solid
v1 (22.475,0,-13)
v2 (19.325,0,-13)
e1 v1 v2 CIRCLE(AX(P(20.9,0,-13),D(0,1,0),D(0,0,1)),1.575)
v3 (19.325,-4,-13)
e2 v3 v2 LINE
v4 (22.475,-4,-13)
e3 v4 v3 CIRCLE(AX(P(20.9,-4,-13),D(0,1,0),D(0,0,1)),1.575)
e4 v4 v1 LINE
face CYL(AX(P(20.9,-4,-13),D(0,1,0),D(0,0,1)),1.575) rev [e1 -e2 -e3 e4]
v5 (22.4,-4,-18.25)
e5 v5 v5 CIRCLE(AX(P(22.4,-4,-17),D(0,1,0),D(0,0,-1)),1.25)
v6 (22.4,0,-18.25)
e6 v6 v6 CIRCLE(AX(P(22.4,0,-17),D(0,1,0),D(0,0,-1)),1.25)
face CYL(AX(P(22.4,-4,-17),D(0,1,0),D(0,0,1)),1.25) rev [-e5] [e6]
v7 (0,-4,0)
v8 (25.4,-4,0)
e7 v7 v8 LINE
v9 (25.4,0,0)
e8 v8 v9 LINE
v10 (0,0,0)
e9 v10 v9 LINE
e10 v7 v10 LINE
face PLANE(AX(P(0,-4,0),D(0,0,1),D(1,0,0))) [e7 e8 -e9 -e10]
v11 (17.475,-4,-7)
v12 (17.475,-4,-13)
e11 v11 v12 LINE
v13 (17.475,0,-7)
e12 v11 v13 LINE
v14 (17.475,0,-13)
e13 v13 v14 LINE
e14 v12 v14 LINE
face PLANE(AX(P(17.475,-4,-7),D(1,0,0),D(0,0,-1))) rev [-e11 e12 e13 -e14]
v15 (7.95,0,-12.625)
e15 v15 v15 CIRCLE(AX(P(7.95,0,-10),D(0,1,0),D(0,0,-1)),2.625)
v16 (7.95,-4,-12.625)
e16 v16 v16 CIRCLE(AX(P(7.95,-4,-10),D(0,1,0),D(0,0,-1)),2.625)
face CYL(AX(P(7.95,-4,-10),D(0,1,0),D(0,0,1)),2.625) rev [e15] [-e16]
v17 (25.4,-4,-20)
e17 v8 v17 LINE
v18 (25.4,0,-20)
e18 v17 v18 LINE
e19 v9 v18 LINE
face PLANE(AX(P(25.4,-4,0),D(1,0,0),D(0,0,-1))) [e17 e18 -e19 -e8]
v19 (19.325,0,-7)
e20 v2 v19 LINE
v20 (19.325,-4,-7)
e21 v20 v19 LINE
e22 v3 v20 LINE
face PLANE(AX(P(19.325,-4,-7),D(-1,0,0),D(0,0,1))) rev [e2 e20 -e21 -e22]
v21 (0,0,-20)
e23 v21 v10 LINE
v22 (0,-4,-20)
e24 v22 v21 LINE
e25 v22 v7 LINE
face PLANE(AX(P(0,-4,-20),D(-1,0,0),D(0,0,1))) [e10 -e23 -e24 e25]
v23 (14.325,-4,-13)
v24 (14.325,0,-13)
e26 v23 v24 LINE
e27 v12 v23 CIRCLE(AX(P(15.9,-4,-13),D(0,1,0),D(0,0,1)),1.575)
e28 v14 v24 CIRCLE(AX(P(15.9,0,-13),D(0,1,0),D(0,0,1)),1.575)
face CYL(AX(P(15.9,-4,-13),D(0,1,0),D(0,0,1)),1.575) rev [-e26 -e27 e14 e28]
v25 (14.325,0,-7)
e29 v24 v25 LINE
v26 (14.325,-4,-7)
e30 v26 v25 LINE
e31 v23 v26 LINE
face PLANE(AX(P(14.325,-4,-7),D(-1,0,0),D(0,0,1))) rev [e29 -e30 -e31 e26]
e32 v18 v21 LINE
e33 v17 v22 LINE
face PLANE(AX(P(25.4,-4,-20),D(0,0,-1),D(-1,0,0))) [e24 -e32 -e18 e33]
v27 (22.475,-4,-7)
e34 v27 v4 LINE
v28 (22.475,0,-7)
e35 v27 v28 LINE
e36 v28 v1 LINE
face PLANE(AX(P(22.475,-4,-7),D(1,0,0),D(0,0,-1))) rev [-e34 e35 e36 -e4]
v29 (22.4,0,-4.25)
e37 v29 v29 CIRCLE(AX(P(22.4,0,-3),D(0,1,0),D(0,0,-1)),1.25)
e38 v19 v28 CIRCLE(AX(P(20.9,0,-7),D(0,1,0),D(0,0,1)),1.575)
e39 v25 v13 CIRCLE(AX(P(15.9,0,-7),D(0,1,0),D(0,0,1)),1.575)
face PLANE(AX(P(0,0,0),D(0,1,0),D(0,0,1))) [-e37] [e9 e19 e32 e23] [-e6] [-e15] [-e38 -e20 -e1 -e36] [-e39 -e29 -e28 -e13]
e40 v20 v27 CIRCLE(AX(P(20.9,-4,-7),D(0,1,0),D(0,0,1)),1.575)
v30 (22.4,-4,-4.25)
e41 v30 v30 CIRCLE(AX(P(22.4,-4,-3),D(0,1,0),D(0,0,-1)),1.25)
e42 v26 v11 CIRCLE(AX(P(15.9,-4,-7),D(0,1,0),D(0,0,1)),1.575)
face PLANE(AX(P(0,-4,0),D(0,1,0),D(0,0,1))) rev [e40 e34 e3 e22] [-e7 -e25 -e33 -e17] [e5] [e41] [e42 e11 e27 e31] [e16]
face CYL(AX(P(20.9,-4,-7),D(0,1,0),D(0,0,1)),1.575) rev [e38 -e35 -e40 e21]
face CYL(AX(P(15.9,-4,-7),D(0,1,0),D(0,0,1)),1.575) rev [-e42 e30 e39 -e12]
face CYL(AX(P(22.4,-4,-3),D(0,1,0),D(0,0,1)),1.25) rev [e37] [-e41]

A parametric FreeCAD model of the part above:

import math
import FreeCAD as App
import Part
import Sketcher

V = App.Vector

doc = App.newDocument("Part")
body = doc.addObject("PartDesign::Body", "Body")

# Sketch on XZ plane
sketch1 = body.newObject("Sketcher::SketchObject", "Sketch")
sketch1.AttachmentSupport = (doc.getObject("XZ_Plane"), [""])
sketch1.MapMode = "FlatFace"
sketch1.addGeometry(Part.LineSegment(V(0, -20, 0), V(0, 0, 0)), False)
sketch1.addGeometry(Part.LineSegment(V(0, 0, 0), V(25.4, 0, 0)), False)
sketch1.addGeometry(Part.LineSegment(V(25.4, 0, 0), V(25.4, -20, 0)), False)
sketch1.addGeometry(Part.LineSegment(V(25.4, -20, 0), V(0, -20, 0)), False)
sketch1.addGeometry(Part.Circle(V(22.4, -3, 0), V(0, 0, 1), 1.2), False)
sketch1.addGeometry(Part.Circle(V(8, -10, 0), V(0, 0, 1), 2.6), False)
sketch1.addGeometry(Part.ArcOfCircle(Part.Circle(V(15.9, -7, 0), V(0, 0, 1), 1.6), math.radians(0), math.radians(180)), False)
sketch1.addGeometry(Part.LineSegment(V(14.3, -7, 0), V(14.3, -13, 0)), False)
sketch1.addGeometry(Part.ArcOfCircle(Part.Circle(V(15.9, -13, 0), V(0, 0, 1), 1.6), math.radians(180), math.radians(360)), False)
sketch1.addGeometry(Part.LineSegment(V(17.5, -13, 0), V(17.5, -7, 0)), False)
sketch1.addGeometry(Part.ArcOfCircle(Part.Circle(V(20.9, -7, 0), V(0, 0, 1), 1.6), math.radians(0), math.radians(180)), False)
sketch1.addGeometry(Part.LineSegment(V(19.3, -7, 0), V(19.3, -13, 0)), False)
sketch1.addGeometry(Part.ArcOfCircle(Part.Circle(V(20.9, -13, 0), V(0, 0, 1), 1.6), math.radians(180), math.radians(360)), False)
sketch1.addGeometry(Part.LineSegment(V(22.5, -13, 0), V(22.5, -7, 0)), False)
sketch1.addGeometry(Part.Circle(V(22.4, -17, 0), V(0, 0, 1), 1.2), False)
sketch1.addConstraint(Sketcher.Constraint("Coincident", 0, 2, 1, 1))
sketch1.addConstraint(Sketcher.Constraint("Coincident", 1, 2, 2, 1))
sketch1.addConstraint(Sketcher.Constraint("Coincident", 2, 2, 3, 1))
sketch1.addConstraint(Sketcher.Constraint("Coincident", 3, 2, 0, 1))
sketch1.addConstraint(Sketcher.Constraint("Tangent", 6, 2, 7, 1))
sketch1.addConstraint(Sketcher.Constraint("Tangent", 7, 2, 8, 1))
sketch1.addConstraint(Sketcher.Constraint("Tangent", 8, 2, 9, 1))
sketch1.addConstraint(Sketcher.Constraint("Tangent", 9, 2, 6, 1))
sketch1.addConstraint(Sketcher.Constraint("Tangent", 10, 2, 11, 1))
sketch1.addConstraint(Sketcher.Constraint("Tangent", 11, 2, 12, 1))
sketch1.addConstraint(Sketcher.Constraint("Tangent", 12, 2, 13, 1))
sketch1.addConstraint(Sketcher.Constraint("Tangent", 13, 2, 10, 1))
sketch1.addConstraint(Sketcher.Constraint("Vertical", 0))
sketch1.addConstraint(Sketcher.Constraint("Horizontal", 1))
sketch1.addConstraint(Sketcher.Constraint("Vertical", 2))
sketch1.addConstraint(Sketcher.Constraint("Horizontal", 3))
sketch1.addConstraint(Sketcher.Constraint("Vertical", 7))
sketch1.addConstraint(Sketcher.Constraint("Vertical", 9))
sketch1.addConstraint(Sketcher.Constraint("Vertical", 11))
sketch1.addConstraint(Sketcher.Constraint("Vertical", 13))
sketch1.addConstraint(Sketcher.Constraint("Coincident", 0, 2, -1, 1))
sketch1.addConstraint(Sketcher.Constraint("Equal", 8, 10))
sketch1.addConstraint(Sketcher.Constraint("Equal", 4, 14))
sketch1.addConstraint(Sketcher.Constraint("Horizontal", 6, 3, 10, 3))
sketch1.addConstraint(Sketcher.Constraint("Horizontal", 8, 3, 12, 3))
sketch1.addConstraint(Sketcher.Constraint("Vertical", 4, 3, 14, 3))
sketch1.addConstraint(Sketcher.Constraint("Diameter", 4, 2.5))
sketch1.addConstraint(Sketcher.Constraint("Diameter", 5, 5.25))
sketch1.addConstraint(Sketcher.Constraint("DistanceY", 0, 1, 0, 2, 20.0))
sketch1.addConstraint(Sketcher.Constraint("DistanceY", 7, 2, 7, 1, 6.0))
sketch1.addConstraint(Sketcher.Constraint("DistanceX", 1, 1, 1, 2, 25.4))
sketch1.addConstraint(Sketcher.Constraint("DistanceY", 4, 3, -1, 1, 3.0))
sketch1.addConstraint(Sketcher.Constraint("DistanceY", 5, 3, -1, 1, 10.0))
sketch1.addConstraint(Sketcher.Constraint("DistanceY", 6, 3, -1, 1, 7.0))
sketch1.addConstraint(Sketcher.Constraint("DistanceY", 14, 3, -1, 1, 17.0))
sketch1.addConstraint(Sketcher.Constraint("Radius", 6, 1.575))
sketch1.addConstraint(Sketcher.Constraint("DistanceX", 6, 3, 10, 3, 5.0))
sketch1.addConstraint(Sketcher.Constraint("DistanceX", 4, 3, 1, 2, 3.0))
sketch1.addConstraint(Sketcher.Constraint("DistanceX", -1, 1, 6, 3, 15.9))
sketch1.addConstraint(Sketcher.Constraint("DistanceX", -1, 1, 5, 3, 7.95))
pad1 = body.newObject("PartDesign::Pad", "Pad")
pad1.Profile = sketch1
pad1.Length = 4

doc.recompute()
